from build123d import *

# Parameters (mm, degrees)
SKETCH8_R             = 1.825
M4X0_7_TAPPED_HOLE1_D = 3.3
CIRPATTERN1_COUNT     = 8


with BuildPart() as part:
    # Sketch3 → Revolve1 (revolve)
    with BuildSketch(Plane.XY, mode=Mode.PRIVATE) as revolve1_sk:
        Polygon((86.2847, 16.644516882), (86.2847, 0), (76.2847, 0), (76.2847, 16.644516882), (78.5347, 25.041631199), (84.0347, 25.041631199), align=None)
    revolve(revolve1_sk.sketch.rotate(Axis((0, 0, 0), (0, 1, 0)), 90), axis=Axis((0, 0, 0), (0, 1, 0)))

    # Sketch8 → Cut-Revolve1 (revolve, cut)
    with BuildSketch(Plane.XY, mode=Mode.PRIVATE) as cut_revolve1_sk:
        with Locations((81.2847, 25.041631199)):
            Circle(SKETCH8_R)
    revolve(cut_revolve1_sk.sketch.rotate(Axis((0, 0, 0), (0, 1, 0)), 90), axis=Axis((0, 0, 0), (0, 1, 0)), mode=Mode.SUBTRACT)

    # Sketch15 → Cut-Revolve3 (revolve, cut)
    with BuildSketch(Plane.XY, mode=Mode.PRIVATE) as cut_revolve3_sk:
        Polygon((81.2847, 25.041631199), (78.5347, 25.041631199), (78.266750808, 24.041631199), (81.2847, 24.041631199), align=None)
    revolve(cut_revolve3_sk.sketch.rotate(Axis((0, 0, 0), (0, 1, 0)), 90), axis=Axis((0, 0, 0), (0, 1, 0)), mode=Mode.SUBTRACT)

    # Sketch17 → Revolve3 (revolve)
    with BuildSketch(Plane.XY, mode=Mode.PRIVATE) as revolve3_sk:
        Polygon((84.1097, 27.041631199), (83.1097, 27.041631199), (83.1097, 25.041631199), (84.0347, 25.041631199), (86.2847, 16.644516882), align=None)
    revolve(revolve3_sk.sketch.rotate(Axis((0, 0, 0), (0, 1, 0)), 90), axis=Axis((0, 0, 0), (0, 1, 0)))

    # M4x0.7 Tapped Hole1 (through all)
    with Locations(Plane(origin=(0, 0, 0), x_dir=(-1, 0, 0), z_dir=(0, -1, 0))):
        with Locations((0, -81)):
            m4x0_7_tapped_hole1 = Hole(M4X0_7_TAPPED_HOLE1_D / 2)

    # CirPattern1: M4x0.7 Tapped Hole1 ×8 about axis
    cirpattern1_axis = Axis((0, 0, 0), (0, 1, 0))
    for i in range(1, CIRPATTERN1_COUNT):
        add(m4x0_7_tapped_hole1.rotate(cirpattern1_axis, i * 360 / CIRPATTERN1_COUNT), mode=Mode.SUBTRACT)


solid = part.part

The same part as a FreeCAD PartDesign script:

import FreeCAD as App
import Part
import Sketcher

V = App.Vector
Q = App.Units.Quantity

doc = App.newDocument("Part")
body = doc.addObject("PartDesign::Body", "Body")

# Sketch on XY plane
sketch1 = doc.addObject("Sketcher::SketchObject", "Sketch")
body.addObject(sketch1)
sketch1.AttachmentSupport = (doc.XY_Plane, [""])
sketch1.MapMode = "FlatFace"
sketch1.addGeometry([
    Part.LineSegment(V(86.2847, 0, 0), V(86.2847, 16.644517, 0)),  # 0
    Part.LineSegment(V(86.2847, 16.644517, 0), V(84.0347, 25.041631, 0)),  # 1
    Part.LineSegment(V(84.0347, 25.041631, 0), V(78.5347, 25.041631, 0)),  # 2
    Part.LineSegment(V(78.5347, 25.041631, 0), V(76.2847, 16.644517, 0)),  # 3
    Part.LineSegment(V(76.2847, 16.644517, 0), V(76.2847, 0, 0)),  # 4
    Part.LineSegment(V(76.2847, 0, 0), V(86.2847, 0, 0)),  # 5
], False)
sketch1.addConstraint([
    Sketcher.Constraint("Coincident", 0, 2, 1, 1),
    Sketcher.Constraint("Coincident", 1, 2, 2, 1),
    Sketcher.Constraint("Coincident", 2, 2, 3, 1),
    Sketcher.Constraint("Coincident", 3, 2, 4, 1),
    Sketcher.Constraint("Coincident", 4, 2, 5, 1),
    Sketcher.Constraint("Coincident", 5, 2, 0, 1),
    Sketcher.Constraint("Vertical", 0),
    Sketcher.Constraint("Horizontal", 2),
    Sketcher.Constraint("Vertical", 4),
    Sketcher.Constraint("Horizontal", 5),
    Sketcher.Constraint("PointOnObject", 4, 2, -1),
    Sketcher.Constraint("Horizontal", 0, 2, 3, 2),
    Sketcher.Constraint("Equal", 1, 3),
    Sketcher.Constraint("DistanceX", 5, 1, 5, 2, Q("10 mm")),
    Sketcher.Constraint("Angle", 1, Q("105 deg")),
    Sketcher.Constraint("DistanceX", 2, 2, 2, 1, Q("5.5 mm")),
    Sketcher.Constraint("DistanceX", -1, 1, 0, 2, Q("86.2847 mm")),
    Sketcher.Constraint("DistanceY", 0, 1, 0, 2, Q("16.644517 mm")),
])
revolution = doc.addObject("PartDesign::Revolution", "Revolution")
body.addObject(revolution)
revolution.Profile = sketch1
revolution.ReferenceAxis = (sketch1, ["V_Axis"])
revolution.Angle = 360

# Sketch on XY plane
sketch2 = doc.addObject("Sketcher::SketchObject", "Sketch001")
body.addObject(sketch2)
sketch2.AttachmentSupport = (doc.XY_Plane, [""])
sketch2.MapMode = "FlatFace"
sketch2.addGeometry(Part.Circle(V(81.2847, 25.041631, 0), V(0, 0, 1), 1.825), False)
sketch2.addConstraint([
    Sketcher.Constraint("Diameter", 0, Q("3.65 mm")),
    Sketcher.Constraint("DistanceX", -1, 1, 0, 3, Q("81.2847 mm")),
    Sketcher.Constraint("DistanceY", -1, 1, 0, 3, Q("25.041631 mm")),
])
groove = doc.addObject("PartDesign::Groove", "Groove")
body.addObject(groove)
groove.Profile = sketch2
groove.ReferenceAxis = (sketch2, ["V_Axis"])
groove.Angle = 360

# Sketch on XY plane
sketch3 = doc.addObject("Sketcher::SketchObject", "Sketch002")
body.addObject(sketch3)
sketch3.AttachmentSupport = (doc.XY_Plane, [""])
sketch3.MapMode = "FlatFace"
sketch3.addGeometry([
    Part.LineSegment(V(81.2847, 25.041631, 0), V(78.5347, 25.041631, 0)),
    Part.LineSegment(V(78.5347, 25.041631, 0), V(78.266751, 24.041631, 0)),
    Part.LineSegment(V(78.266751, 24.041631, 0), V(81.2847, 24.041631, 0)),
    Part.LineSegment(V(81.2847, 24.041631, 0), V(81.2847, 25.041631, 0)),
], False)
sketch3.addConstraint([
    Sketcher.Constraint("Coincident", 0, 2, 1, 1),
    Sketcher.Constraint("Coincident", 1, 2, 2, 1),
    Sketcher.Constraint("Coincident", 2, 2, 3, 1),
    Sketcher.Constraint("Coincident", 3, 2, 0, 1),
    Sketcher.Constraint("Horizontal", 0),
    Sketcher.Constraint("Horizontal", 2),
    Sketcher.Constraint("Vertical", 3),
    Sketcher.Constraint("DistanceY", 3, 1, 3, 2, Q("1 mm")),
    Sketcher.Constraint("Angle", 1, Q("-105 deg")),
    Sketcher.Constraint("DistanceX", 0, 2, 0, 1, Q("2.75 mm")),
    Sketcher.Constraint("DistanceX", -1, 1, 0, 2, Q("78.5347 mm")),
    Sketcher.Constraint("DistanceY", -1, 1, 0, 2, Q("25.041631 mm")),
])
groove2 = doc.addObject("PartDesign::Groove", "Groove001")
body.addObject(groove2)
groove2.Profile = sketch3
groove2.ReferenceAxis = (sketch3, ["V_Axis"])
groove2.Angle = 360

# Sketch on XY plane
sketch4 = doc.addObject("Sketcher::SketchObject", "Sketch003")
body.addObject(sketch4)
sketch4.AttachmentSupport = (doc.XY_Plane, [""])
sketch4.MapMode = "FlatFace"
sketch4.addGeometry([
    Part.LineSegment(V(84.1097, 27.041631, 0), V(83.1097, 27.041631, 0)),  # 0
    Part.LineSegment(V(83.1097, 27.041631, 0), V(83.1097, 25.041631, 0)),  # 1
    Part.LineSegment(V(83.1097, 25.041631, 0), V(84.0347, 25.041631, 0)),  # 2
    Part.LineSegment(V(84.0347, 25.041631, 0), V(86.2847, 16.644517, 0)),  # 3
    Part.LineSegment(V(86.2847, 16.644517, 0), V(84.1097, 27.041631, 0)),  # 4
], False)
sketch4.addConstraint([
    Sketcher.Constraint("Coincident", 0, 2, 1, 1),
    Sketcher.Constraint("Coincident", 1, 2, 2, 1),
    Sketcher.Constraint("Coincident", 2, 2, 3, 1),
    Sketcher.Constraint("Coincident", 3, 2, 4, 1),
    Sketcher.Constraint("Coincident", 4, 2, 0, 1),
    Sketcher.Constraint("Horizontal", 0),
    Sketcher.Constraint("Vertical", 1),
    Sketcher.Constraint("Horizontal", 2),
    Sketcher.Constraint("DistanceX", 0, 2, 0, 1, Q("1 mm")),
    Sketcher.Constraint("DistanceY", 1, 2, 1, 1, Q("2 mm")),
    Sketcher.Constraint("Angle", 3, Q("-75 deg")),
    Sketcher.Constraint("DistanceX", 2, 1, 2, 2, Q("0.925 mm")),
    Sketcher.Constraint("DistanceX", 2, 2, 3, 2, Q("2.25 mm")),
    Sketcher.Constraint("DistanceX", -1, 1, 0, 2, Q("83.1097 mm")),
    Sketcher.Constraint("DistanceY", -1, 1, 0, 2, Q("27.041631 mm")),
])
revolution2 = doc.addObject("PartDesign::Revolution", "Revolution001")
body.addObject(revolution2)
revolution2.Profile = sketch4
revolution2.ReferenceAxis = (sketch4, ["V_Axis"])
revolution2.Angle = 360

# Sketch on XZ plane
sketch5 = doc.addObject("Sketcher::SketchObject", "Sketch004")
body.addObject(sketch5)
sketch5.AttachmentSupport = (doc.XZ_Plane, [""])
sketch5.MapMode = "FlatFace"
sketch5.addGeometry(Part.Circle(V(0, 81, 0), V(0, 0, 1), 1.65), False)
sketch5.addConstraint([
    Sketcher.Constraint("PointOnObject", 0, 3, -2),
    Sketcher.Constraint("Diameter", 0, Q("3.3 mm")),
    Sketcher.Constraint("DistanceY", -1, 1, 0, 3, Q("81 mm")),
])
doc.recompute()
hole = doc.addObject("PartDesign::Hole", "Hole")
body.addObject(hole)
hole.Profile = sketch5
hole.ThreadType = "None"
hole.Diameter = 3.3
hole.DepthType = "ThroughAll"
doc.recompute()

polarpattern = doc.addObject("PartDesign::PolarPattern", "PolarPattern")
body.addObject(polarpattern)
polarpattern.Originals = [hole]
polarpattern.Axis = (doc.Y_Axis, [""])
polarpattern.Angle = 360
polarpattern.Occurrences = 8
body.Tip = polarpattern

doc.recompute()
